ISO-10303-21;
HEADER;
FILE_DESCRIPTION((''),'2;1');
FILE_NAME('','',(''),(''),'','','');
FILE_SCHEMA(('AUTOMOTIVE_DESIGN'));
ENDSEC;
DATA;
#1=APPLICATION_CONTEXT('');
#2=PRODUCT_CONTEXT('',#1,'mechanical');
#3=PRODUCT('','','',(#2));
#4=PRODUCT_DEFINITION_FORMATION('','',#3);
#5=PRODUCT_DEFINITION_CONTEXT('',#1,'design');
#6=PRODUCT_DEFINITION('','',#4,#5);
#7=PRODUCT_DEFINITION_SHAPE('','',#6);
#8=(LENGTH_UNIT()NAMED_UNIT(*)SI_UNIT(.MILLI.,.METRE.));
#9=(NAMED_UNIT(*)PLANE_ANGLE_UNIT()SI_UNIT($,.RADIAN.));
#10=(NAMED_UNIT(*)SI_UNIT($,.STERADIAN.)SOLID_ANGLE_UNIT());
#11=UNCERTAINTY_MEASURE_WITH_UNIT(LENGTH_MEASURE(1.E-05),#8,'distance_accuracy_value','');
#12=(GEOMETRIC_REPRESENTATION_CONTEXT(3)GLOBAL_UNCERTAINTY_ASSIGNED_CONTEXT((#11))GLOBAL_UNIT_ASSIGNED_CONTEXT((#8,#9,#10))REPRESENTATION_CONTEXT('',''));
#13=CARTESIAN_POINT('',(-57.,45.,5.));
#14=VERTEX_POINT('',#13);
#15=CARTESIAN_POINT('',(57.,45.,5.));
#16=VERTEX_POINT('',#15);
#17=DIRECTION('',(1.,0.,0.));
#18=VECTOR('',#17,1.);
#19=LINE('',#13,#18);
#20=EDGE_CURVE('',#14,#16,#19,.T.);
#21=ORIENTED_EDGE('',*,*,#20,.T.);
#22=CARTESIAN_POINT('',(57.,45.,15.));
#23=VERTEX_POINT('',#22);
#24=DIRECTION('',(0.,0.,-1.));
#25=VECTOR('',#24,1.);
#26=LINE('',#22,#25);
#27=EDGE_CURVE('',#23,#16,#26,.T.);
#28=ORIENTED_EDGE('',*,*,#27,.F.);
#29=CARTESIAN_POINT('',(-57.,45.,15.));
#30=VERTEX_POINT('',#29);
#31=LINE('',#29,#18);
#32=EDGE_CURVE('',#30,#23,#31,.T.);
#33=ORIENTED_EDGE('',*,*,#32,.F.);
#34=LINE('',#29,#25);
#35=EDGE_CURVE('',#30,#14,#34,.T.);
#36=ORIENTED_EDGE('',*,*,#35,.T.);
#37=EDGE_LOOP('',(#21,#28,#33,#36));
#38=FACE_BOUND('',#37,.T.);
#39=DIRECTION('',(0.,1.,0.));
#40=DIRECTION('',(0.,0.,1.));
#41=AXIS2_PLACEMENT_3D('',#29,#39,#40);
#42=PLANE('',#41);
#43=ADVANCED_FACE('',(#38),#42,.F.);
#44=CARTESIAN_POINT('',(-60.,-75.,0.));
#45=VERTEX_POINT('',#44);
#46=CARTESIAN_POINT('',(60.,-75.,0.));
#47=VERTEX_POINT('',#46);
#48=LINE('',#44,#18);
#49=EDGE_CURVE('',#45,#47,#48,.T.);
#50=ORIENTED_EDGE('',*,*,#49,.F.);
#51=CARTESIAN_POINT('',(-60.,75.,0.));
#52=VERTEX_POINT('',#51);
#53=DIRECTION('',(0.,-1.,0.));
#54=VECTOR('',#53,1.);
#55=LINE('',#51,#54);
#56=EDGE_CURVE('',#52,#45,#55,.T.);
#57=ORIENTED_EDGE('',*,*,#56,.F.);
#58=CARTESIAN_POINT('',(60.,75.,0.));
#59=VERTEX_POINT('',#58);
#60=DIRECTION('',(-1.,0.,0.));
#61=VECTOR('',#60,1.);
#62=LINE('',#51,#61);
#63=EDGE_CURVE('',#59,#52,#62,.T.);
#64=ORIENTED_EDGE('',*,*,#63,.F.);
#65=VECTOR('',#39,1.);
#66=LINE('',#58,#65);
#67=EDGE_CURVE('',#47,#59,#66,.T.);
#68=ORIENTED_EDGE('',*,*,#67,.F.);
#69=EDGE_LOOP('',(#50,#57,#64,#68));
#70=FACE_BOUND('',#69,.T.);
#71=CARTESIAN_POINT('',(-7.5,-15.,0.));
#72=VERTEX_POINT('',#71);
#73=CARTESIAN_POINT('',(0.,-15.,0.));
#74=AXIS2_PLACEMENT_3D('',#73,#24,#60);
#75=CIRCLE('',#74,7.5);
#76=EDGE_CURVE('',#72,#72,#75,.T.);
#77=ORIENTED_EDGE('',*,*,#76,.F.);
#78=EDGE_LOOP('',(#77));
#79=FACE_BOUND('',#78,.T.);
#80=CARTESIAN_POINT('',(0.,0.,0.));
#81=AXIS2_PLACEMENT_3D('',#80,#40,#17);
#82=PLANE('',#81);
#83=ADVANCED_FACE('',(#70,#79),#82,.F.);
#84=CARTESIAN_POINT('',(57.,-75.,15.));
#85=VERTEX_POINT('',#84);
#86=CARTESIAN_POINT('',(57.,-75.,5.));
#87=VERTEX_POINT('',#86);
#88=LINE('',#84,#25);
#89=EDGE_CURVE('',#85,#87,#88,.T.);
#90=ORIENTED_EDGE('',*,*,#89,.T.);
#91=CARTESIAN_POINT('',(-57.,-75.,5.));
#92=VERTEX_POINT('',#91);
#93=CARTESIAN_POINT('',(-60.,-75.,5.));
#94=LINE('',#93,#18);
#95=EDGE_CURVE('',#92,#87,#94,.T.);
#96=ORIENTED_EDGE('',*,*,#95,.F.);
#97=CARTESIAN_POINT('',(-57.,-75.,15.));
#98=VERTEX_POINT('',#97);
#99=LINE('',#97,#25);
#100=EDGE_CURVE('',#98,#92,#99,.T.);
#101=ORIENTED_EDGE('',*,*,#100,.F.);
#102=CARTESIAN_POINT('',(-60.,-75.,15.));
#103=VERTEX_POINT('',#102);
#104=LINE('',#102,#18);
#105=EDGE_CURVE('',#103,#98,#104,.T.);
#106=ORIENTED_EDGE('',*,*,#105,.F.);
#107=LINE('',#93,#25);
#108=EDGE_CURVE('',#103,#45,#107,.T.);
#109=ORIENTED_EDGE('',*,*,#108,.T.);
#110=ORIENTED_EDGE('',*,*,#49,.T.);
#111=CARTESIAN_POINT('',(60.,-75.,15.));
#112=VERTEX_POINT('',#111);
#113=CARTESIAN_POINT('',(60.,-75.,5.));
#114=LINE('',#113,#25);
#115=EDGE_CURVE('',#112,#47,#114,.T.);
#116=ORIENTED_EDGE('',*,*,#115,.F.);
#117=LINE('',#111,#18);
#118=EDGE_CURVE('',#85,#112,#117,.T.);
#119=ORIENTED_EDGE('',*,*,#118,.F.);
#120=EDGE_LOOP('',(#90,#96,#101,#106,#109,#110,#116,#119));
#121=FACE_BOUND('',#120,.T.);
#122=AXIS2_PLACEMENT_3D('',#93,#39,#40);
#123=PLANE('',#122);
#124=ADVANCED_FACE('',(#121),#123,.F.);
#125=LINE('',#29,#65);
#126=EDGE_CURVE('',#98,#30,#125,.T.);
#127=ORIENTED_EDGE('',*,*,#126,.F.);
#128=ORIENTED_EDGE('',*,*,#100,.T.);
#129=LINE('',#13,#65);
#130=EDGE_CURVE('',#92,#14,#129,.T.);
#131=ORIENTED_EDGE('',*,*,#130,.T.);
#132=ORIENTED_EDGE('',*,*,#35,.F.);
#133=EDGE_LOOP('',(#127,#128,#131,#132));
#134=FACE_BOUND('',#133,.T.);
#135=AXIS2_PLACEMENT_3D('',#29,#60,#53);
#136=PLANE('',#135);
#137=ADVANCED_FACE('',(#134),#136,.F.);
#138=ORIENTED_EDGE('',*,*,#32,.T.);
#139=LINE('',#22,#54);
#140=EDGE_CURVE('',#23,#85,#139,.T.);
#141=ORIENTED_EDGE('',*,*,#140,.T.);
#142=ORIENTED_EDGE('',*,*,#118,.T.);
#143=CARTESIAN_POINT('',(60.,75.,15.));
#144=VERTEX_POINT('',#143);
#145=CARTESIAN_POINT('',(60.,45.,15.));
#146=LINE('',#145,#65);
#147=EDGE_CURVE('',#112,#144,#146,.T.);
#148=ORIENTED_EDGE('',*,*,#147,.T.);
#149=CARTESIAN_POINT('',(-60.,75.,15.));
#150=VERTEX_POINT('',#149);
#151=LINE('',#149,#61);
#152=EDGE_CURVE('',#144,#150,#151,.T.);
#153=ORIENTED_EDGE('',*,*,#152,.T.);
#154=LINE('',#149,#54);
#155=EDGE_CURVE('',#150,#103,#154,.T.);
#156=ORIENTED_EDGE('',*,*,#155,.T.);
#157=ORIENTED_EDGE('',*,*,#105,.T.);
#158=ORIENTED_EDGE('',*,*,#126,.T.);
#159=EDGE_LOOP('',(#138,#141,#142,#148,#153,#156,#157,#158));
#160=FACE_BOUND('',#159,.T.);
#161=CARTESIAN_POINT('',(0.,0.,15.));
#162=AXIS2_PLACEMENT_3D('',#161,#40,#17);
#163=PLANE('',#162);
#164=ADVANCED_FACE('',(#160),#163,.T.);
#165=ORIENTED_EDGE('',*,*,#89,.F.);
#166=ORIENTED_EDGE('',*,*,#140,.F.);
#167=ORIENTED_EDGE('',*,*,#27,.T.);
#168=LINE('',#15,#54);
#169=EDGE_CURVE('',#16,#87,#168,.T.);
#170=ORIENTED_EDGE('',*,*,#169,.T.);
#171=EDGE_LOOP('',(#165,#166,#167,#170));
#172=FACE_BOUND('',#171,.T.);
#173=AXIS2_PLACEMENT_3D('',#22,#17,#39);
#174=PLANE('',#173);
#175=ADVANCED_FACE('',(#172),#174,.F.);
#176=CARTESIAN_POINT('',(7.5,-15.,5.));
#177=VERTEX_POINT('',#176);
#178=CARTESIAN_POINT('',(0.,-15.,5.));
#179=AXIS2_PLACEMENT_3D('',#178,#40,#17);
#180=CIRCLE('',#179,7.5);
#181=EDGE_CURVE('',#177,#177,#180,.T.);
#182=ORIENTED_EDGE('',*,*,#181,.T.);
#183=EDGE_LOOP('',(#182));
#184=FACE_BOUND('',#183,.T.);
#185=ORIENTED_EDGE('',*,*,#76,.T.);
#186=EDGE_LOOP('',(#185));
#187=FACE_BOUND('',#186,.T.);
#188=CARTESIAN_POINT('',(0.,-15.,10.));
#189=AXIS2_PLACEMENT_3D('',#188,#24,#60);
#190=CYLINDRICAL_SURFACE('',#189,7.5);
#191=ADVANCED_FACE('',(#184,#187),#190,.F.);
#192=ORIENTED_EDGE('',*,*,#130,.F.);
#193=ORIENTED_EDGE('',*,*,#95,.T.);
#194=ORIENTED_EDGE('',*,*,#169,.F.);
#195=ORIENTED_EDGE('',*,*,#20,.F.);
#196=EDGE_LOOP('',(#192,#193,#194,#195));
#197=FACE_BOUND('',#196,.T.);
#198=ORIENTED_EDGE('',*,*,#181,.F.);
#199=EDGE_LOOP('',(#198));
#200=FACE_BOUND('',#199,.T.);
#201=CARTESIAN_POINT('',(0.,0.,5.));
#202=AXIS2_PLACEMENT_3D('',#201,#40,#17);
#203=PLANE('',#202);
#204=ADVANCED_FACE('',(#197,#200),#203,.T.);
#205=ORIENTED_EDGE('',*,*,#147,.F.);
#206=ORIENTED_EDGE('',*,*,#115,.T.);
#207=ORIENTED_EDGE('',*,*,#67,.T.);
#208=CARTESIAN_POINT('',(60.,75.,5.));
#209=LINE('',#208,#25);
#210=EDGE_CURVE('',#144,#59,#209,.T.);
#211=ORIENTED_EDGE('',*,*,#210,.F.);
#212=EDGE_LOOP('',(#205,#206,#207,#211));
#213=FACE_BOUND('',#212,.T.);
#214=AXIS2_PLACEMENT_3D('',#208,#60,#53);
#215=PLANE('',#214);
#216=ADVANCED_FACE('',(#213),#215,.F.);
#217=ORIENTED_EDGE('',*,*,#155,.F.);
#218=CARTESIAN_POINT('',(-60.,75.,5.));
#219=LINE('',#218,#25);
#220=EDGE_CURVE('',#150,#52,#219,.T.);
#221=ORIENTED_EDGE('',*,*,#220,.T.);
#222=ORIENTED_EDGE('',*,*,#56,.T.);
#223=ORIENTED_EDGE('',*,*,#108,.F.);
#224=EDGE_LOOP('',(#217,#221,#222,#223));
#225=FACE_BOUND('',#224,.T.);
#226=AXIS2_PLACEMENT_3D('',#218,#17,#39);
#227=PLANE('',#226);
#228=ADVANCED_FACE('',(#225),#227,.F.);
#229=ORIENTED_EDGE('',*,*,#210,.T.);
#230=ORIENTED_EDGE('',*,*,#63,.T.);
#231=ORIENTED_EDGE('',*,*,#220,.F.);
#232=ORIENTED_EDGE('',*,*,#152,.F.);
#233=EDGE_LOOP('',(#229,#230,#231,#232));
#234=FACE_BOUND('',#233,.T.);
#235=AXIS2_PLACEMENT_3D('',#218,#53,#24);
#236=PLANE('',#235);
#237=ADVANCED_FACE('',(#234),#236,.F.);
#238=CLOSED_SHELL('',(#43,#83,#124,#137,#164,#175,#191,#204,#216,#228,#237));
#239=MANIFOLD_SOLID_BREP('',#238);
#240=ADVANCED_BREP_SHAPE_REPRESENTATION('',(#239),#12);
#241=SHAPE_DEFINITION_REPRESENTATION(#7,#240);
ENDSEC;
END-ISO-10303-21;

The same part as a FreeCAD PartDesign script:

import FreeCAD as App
import Part
import Sketcher
from FreeCAD import Vector
Q = App.Units.Quantity

doc = App.newDocument("Part")
params = doc.addObject("Spreadsheet::Sheet", "Params")
for row, (alias, value) in enumerate([
    ("sketch1_width", "120 mm"),
    ("sketch1_height", "150 mm"),
    ("pad1_length", "5 mm"),
    ("sketch2_width", "3 mm"),
    ("sketch2_width2", "114 mm"),
    ("sketch2_height", "150 mm"),
    ("pad2_length", "10 mm"),
    ("sketch3_diameter", "15 mm"),
    ("pocket1_length", "10 mm"),
], start=1):
    params.set(f"A{row}", alias)
    params.set(f"B{row}", "=" + value)
    params.setAlias(f"B{row}", alias)

body = doc.addObject("PartDesign::Body", "Body")

sketch1 = body.newObject("Sketcher::SketchObject", "Sketch")
sketch1.AttachmentSupport = (doc.getObject("XY_Plane"), [""])
sketch1.MapMode = "FlatFace"
sketch1.addGeometry([
    Part.LineSegment(Vector(-60, 75, 0), Vector(-60, -75, 0)),
    Part.LineSegment(Vector(-60, -75, 0), Vector(60, -75, 0)),
    Part.LineSegment(Vector(60, -75, 0), Vector(60, 75, 0)),
    Part.LineSegment(Vector(60, 75, 0), Vector(-60, 75, 0)),
], False)
sketch1.addConstraint([
    Sketcher.Constraint("Coincident", 0, 2, 1, 1),
    Sketcher.Constraint("Coincident", 1, 2, 2, 1),
    Sketcher.Constraint("Coincident", 2, 2, 3, 1),
    Sketcher.Constraint("Coincident", 3, 2, 0, 1),
    Sketcher.Constraint("Vertical", 0),
    Sketcher.Constraint("Horizontal", 1),
    Sketcher.Constraint("Vertical", 2),
    Sketcher.Constraint("Horizontal", 3),
    Sketcher.Constraint("Symmetric", 0, 2, 2, 2, -1, 1),
    Sketcher.Constraint("DistanceX", 1, 1, 1, 2, Q("120 mm")),
    Sketcher.Constraint("DistanceY", 0, 2, 0, 1, Q("150 mm")),
])
sketch1.setExpression("Constraints[9]", "Params.sketch1_width")
sketch1.setExpression("Constraints[10]", "Params.sketch1_height")
pad1 = body.newObject("PartDesign::Pad", "Pad")
pad1.Profile = sketch1
pad1.setExpression("Length", "Params.pad1_length")

sketch2 = body.newObject("Sketcher::SketchObject", "Sketch001")
sketch2.AttachmentSupport = (doc.getObject("XY_Plane"), [""])
sketch2.MapMode = "FlatFace"
sketch2.AttachmentOffset = App.Placement(Vector(0, 0, 5), App.Rotation())
sketch2.addGeometry([
    Part.LineSegment(Vector(-60, -75, 0), Vector(-57, -75, 0)),
    Part.LineSegment(Vector(-57, -75, 0), Vector(-57, 45, 0)),
    Part.LineSegment(Vector(-57, 45, 0), Vector(57, 45, 0)),
    Part.LineSegment(Vector(57, 45, 0), Vector(57, -75, 0)),
    Part.LineSegment(Vector(57, -75, 0), Vector(60, -75, 0)),
    Part.LineSegment(Vector(60, -75, 0), Vector(60, 75, 0)),
    Part.LineSegment(Vector(60, 75, 0), Vector(-60, 75, 0)),
    Part.LineSegment(Vector(-60, 75, 0), Vector(-60, -75, 0)),
], False)
sketch2.addConstraint([
    Sketcher.Constraint("Coincident", 0, 2, 1, 1),
    Sketcher.Constraint("Coincident", 1, 2, 2, 1),
    Sketcher.Constraint("Coincident", 2, 2, 3, 1),
    Sketcher.Constraint("Coincident", 3, 2, 4, 1),
    Sketcher.Constraint("Coincident", 4, 2, 5, 1),
    Sketcher.Constraint("Coincident", 5, 2, 6, 1),
    Sketcher.Constraint("Coincident", 6, 2, 7, 1),
    Sketcher.Constraint("Coincident", 7, 2, 0, 1),
    Sketcher.Constraint("Horizontal", 0),
    Sketcher.Constraint("Vertical", 1),
    Sketcher.Constraint("Horizontal", 2),
    Sketcher.Constraint("Vertical", 3),
    Sketcher.Constraint("Horizontal", 4),
    Sketcher.Constraint("Vertical", 5),
    Sketcher.Constraint("Horizontal", 6),
    Sketcher.Constraint("Vertical", 7),
    Sketcher.Constraint("Symmetric", 4, 2, 6, 2, -1, 1),
    Sketcher.Constraint("Symmetric", 0, 2, 3, 2, -2),
    Sketcher.Constraint("Equal", 6, 1),
    Sketcher.Constraint("DistanceX", 0, 1, 0, 2, Q("3 mm")),
    Sketcher.Constraint("DistanceX", 2, 1, 2, 2, Q("114 mm")),
    Sketcher.Constraint("DistanceY", 5, 1, 5, 2, Q("150 mm")),
])
sketch2.setExpression("Constraints[19]", "Params.sketch2_width")
sketch2.setExpression("Constraints[20]", "Params.sketch2_width2")
sketch2.setExpression("Constraints[21]", "Params.sketch2_height")
pad2 = body.newObject("PartDesign::Pad", "Pad001")
pad2.Profile = sketch2
pad2.setExpression("Length", "Params.pad2_length")

sketch3 = body.newObject("Sketcher::SketchObject", "Sketch002")
sketch3.AttachmentSupport = (doc.getObject("XY_Plane"), [""])
sketch3.MapMode = "FlatFace"
sketch3.addGeometry(Part.Circle(Vector(0, -15, 0), Vector(0, 0, 1), 8), False)
sketch3.addConstraint([
    Sketcher.Constraint("PointOnObject", 0, 3, -2),
    Sketcher.Constraint("Diameter", 0, Q("15 mm")),
    Sketcher.Constraint("DistanceY", 0, 3, -1, 1, Q("15 mm")),
])
sketch3.setExpression("Constraints[1]", "Params.sketch3_diameter")
pocket1 = body.newObject("PartDesign::Pocket", "Pocket")
pocket1.Profile = sketch3
pocket1.setExpression("Length", "Params.pocket1_length")
pocket1.Reversed = True

doc.recompute()
